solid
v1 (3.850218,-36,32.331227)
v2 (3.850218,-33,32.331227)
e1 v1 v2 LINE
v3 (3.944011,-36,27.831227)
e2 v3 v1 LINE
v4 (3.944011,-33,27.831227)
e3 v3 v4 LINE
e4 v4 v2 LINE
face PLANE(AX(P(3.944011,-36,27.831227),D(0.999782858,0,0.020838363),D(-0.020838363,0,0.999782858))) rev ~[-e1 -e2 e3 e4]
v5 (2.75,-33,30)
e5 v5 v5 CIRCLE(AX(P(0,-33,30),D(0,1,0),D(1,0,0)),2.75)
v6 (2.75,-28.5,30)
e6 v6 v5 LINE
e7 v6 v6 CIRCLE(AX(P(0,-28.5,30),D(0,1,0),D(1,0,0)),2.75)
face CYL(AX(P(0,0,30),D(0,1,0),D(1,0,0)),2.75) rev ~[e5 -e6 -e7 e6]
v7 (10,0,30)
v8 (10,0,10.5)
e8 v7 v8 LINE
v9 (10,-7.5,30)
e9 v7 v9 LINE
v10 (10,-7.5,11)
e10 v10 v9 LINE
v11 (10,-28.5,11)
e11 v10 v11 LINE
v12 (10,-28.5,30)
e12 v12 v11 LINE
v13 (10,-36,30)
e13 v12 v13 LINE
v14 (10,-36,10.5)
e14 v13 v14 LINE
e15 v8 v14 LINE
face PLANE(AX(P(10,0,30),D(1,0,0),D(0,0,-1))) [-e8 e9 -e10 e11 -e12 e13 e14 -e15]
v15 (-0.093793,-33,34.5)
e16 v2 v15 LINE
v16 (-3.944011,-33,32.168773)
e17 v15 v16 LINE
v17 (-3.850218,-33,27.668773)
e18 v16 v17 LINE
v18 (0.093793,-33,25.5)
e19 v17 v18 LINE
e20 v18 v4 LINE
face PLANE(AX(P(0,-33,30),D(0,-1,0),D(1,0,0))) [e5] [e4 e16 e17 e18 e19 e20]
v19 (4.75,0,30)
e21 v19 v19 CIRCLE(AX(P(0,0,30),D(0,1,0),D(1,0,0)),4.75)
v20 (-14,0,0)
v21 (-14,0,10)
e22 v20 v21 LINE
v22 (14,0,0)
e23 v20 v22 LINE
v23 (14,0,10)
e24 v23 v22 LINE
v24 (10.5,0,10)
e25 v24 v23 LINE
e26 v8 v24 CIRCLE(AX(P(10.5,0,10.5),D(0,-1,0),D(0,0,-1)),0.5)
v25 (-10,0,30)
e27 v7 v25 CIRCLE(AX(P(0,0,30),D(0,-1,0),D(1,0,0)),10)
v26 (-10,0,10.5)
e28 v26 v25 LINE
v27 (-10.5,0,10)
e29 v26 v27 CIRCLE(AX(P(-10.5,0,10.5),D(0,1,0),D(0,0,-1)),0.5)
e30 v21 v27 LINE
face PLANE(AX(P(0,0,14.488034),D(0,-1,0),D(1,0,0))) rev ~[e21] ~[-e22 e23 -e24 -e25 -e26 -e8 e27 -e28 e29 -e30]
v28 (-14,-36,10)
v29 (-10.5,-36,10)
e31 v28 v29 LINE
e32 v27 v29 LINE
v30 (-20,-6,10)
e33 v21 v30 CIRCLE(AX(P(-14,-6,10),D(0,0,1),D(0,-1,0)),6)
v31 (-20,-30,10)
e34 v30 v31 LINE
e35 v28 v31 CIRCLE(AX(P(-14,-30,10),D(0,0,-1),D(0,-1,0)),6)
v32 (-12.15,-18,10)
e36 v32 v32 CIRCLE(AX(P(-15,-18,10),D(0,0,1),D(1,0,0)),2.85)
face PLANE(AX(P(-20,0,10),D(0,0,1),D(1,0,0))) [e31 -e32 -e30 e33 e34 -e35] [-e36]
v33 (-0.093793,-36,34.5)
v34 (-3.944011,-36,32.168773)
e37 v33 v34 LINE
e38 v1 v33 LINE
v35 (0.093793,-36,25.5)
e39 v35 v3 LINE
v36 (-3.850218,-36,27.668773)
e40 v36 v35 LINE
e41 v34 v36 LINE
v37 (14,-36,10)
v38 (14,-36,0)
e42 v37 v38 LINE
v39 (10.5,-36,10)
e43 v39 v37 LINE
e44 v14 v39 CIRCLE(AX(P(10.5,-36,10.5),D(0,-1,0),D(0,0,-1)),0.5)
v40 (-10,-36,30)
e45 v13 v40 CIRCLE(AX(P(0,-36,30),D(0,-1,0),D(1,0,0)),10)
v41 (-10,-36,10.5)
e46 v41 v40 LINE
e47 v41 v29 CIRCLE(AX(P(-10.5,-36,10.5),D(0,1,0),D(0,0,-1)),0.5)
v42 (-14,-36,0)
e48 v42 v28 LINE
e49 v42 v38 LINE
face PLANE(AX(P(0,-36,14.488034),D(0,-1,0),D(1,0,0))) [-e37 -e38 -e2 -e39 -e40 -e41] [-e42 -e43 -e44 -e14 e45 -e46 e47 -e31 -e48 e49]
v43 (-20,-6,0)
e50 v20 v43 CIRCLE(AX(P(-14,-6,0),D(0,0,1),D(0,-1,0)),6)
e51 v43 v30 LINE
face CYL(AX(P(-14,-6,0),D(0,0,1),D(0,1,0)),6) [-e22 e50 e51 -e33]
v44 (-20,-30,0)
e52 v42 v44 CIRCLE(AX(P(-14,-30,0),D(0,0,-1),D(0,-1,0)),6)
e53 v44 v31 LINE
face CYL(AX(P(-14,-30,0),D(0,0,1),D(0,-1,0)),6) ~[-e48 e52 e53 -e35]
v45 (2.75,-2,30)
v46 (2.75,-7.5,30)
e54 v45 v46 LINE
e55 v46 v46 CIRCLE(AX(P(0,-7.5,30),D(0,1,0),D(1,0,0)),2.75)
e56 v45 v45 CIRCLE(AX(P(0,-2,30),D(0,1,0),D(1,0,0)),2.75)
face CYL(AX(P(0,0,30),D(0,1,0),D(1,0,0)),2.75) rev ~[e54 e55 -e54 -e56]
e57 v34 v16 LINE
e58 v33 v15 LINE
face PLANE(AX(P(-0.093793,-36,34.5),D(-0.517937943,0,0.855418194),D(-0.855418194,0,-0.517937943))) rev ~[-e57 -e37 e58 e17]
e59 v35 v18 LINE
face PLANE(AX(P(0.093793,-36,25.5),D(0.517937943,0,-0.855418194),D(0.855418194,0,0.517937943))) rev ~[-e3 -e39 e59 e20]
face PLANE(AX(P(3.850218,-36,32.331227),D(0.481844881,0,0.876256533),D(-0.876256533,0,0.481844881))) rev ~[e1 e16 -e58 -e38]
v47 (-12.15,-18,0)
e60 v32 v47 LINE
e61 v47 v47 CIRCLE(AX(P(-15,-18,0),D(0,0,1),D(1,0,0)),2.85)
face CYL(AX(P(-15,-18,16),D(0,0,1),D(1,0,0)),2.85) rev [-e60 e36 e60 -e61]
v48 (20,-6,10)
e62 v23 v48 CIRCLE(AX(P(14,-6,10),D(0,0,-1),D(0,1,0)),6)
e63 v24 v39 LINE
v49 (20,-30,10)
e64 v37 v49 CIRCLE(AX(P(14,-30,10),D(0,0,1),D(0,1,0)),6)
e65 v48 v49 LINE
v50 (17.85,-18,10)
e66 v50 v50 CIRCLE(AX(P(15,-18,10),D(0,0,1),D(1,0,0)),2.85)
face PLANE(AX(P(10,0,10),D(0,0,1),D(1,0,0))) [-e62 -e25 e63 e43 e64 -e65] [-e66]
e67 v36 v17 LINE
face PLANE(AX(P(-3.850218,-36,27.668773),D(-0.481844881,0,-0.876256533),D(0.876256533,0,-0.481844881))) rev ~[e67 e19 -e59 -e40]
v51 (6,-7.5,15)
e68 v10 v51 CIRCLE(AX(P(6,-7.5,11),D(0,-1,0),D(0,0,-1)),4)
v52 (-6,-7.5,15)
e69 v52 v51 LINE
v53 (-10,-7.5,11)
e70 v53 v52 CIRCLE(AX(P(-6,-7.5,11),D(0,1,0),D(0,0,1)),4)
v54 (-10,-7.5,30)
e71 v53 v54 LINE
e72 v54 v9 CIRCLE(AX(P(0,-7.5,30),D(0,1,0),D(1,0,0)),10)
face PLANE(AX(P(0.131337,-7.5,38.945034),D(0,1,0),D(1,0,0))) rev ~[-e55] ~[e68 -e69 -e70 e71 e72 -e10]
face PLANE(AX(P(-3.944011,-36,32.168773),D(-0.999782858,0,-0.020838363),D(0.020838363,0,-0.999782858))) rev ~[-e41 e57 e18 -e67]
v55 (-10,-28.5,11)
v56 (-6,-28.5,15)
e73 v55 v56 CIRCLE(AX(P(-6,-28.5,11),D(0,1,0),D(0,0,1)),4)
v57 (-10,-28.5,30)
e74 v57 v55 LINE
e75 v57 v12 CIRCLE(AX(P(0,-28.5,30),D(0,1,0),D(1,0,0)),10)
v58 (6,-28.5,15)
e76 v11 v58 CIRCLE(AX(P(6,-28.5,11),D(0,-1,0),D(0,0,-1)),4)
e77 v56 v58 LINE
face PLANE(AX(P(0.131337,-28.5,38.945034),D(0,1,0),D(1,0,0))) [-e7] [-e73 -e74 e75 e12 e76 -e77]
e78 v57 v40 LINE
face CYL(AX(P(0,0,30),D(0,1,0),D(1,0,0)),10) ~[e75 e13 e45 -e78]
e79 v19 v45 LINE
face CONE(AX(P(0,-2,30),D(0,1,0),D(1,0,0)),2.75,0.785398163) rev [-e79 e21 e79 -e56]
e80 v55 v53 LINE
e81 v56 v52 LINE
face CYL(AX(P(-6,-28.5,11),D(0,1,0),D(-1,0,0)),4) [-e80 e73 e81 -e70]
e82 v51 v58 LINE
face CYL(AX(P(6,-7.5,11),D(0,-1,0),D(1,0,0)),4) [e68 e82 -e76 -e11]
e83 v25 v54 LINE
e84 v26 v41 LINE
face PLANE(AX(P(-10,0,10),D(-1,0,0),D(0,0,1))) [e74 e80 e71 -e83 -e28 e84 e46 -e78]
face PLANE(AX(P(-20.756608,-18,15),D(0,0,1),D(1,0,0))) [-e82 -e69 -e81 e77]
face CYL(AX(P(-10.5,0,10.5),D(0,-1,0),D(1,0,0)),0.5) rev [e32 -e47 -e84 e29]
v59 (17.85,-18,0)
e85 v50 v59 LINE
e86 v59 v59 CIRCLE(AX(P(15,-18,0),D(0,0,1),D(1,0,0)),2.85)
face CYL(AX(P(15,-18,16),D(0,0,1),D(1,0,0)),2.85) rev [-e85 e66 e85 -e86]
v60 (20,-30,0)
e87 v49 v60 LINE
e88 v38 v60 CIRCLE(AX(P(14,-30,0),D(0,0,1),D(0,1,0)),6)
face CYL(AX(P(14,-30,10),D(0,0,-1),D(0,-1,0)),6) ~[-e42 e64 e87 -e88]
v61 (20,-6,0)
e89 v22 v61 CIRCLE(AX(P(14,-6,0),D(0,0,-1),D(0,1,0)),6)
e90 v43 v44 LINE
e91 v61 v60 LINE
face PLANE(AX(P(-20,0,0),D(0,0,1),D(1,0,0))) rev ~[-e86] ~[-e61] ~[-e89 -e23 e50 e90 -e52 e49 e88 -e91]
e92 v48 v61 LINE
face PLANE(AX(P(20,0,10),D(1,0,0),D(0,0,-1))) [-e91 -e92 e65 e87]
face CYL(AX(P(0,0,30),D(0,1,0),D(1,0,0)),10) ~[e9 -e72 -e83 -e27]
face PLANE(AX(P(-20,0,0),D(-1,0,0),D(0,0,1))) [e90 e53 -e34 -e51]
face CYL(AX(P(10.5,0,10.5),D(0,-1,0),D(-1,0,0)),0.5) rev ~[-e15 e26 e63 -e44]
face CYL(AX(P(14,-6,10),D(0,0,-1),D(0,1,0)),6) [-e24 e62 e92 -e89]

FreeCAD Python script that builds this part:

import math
import FreeCAD as App
import Part
import Sketcher
from FreeCAD import Vector
Q = App.Units.Quantity


def edges_at(feature, points):
    """Names of the edges that pass closest to the given points."""
    edges = feature.Shape.Edges
    near = lambda p: min(range(len(edges)), key=lambda i: edges[i].distToShape(Part.Vertex(*p))[0])
    return sorted({f"Edge{near(p) + 1}" for p in points})


def add_polygon(sketch, points):
    """Adds a closed chain of lines whose ends are joined by coincident constraints."""
    first, n = sketch.GeometryCount, len(points)
    for a, b in zip(points, points[1:] + points[:1]):
        sketch.addGeometry(Part.LineSegment(App.Vector(*a, 0), App.Vector(*b, 0)), False)
    for i in range(n):
        sketch.addConstraint(Sketcher.Constraint("Coincident", first + i, 2, first + (i + 1) % n, 1))

doc = App.newDocument("Part")
params = doc.addObject("Spreadsheet::Sheet", "Params")
for row, (alias, value) in enumerate([
    ("sketch1_radius", "10 mm"),
    ("sketch1_width", "40 mm"),
    ("sketch1_height", "20 mm"),
    ("pad1_length", "36 mm"),
    ("pocket1_length", "21 mm"),
    ("sketch3_diameter", "5.5 mm"),
    ("fillet_radius", "4 mm"),
    ("fillet2_radius", "0.5 mm"),
    ("sketch4_diameter", "5.7 mm"),
    ("fillet3_radius", "6 mm"),
    ("chamfer_size", "2 mm"),
    ("pocket4_length", "3 mm"),
], start=1):
    params.set(f"A{row}", alias)
    params.set(f"B{row}", "=" + value)
    params.setAlias(f"B{row}", alias)

body = doc.addObject("PartDesign::Body", "Body")

# Sketch on XZ plane
sketch1 = body.newObject("Sketcher::SketchObject", "Sketch")
sketch1.AttachmentSupport = (doc.getObject("XZ_Plane"), [""])
sketch1.MapMode = "FlatFace"
sketch1.addGeometry(Part.LineSegment(Vector(-20, 0, 0), Vector(20, 0, 0)), False)
sketch1.addGeometry(Part.LineSegment(Vector(20, 0, 0), Vector(20, 10, 0)), False)
sketch1.addGeometry(Part.LineSegment(Vector(20, 10, 0), Vector(10, 10, 0)), False)
sketch1.addGeometry(Part.LineSegment(Vector(10, 10, 0), Vector(10, 30, 0)), False)
sketch1.addGeometry(Part.ArcOfCircle(Part.Circle(Vector(0, 30, 0), Vector(0, 0, 1), 10), math.radians(0), math.radians(180)), False)
sketch1.addGeometry(Part.LineSegment(Vector(-10, 30, 0), Vector(-10, 10, 0)), False)
sketch1.addGeometry(Part.LineSegment(Vector(-10, 10, 0), Vector(-20, 10, 0)), False)
sketch1.addGeometry(Part.LineSegment(Vector(-20, 10, 0), Vector(-20, 0, 0)), False)
sketch1.addConstraint(Sketcher.Constraint("Coincident", 0, 2, 1, 1))
sketch1.addConstraint(Sketcher.Constraint("Coincident", 1, 2, 2, 1))
sketch1.addConstraint(Sketcher.Constraint("Coincident", 2, 2, 3, 1))
sketch1.addConstraint(Sketcher.Constraint("Tangent", 3, 2, 4, 1))
sketch1.addConstraint(Sketcher.Constraint("Tangent", 4, 2, 5, 1))
sketch1.addConstraint(Sketcher.Constraint("Coincident", 5, 2, 6, 1))
sketch1.addConstraint(Sketcher.Constraint("Coincident", 6, 2, 7, 1))
sketch1.addConstraint(Sketcher.Constraint("Coincident", 7, 2, 0, 1))
sketch1.addConstraint(Sketcher.Constraint("Horizontal", 0))
sketch1.addConstraint(Sketcher.Constraint("Vertical", 1))
sketch1.addConstraint(Sketcher.Constraint("Horizontal", 2))
sketch1.addConstraint(Sketcher.Constraint("Vertical", 3))
sketch1.addConstraint(Sketcher.Constraint("Vertical", 5))
sketch1.addConstraint(Sketcher.Constraint("Horizontal", 6))
sketch1.addConstraint(Sketcher.Constraint("Vertical", 7))
sketch1.addConstraint(Sketcher.Constraint("Symmetric", 0, 2, 7, 2, -1, 1))
sketch1.addConstraint(Sketcher.Constraint("Symmetric", 2, 2, 5, 2, -2))
sketch1.addConstraint(Sketcher.Constraint("Equal", 6, 1))
sketch1.addConstraint(Sketcher.Constraint("Radius", 4, Q("10 mm")))
sketch1.addConstraint(Sketcher.Constraint("DistanceX", 0, 1, 0, 2, Q("40 mm")))
sketch1.addConstraint(Sketcher.Constraint("DistanceY", 3, 1, 3, 2, Q("20 mm")))
sketch1.setExpression("Constraints[18]", "Params.sketch1_radius")
sketch1.setExpression("Constraints[19]", "Params.sketch1_width")
sketch1.setExpression("Constraints[20]", "Params.sketch1_height")
pad1 = body.newObject("PartDesign::Pad", "Pad")
pad1.Profile = sketch1
pad1.setExpression("Length", "Params.pad1_length")

# Sketch on XZ plane
sketch2 = body.newObject("Sketcher::SketchObject", "Sketch001")
sketch2.AttachmentSupport = (doc.getObject("XZ_Plane"), [""])
sketch2.MapMode = "FlatFace"
sketch2.AttachmentOffset = App.Placement(Vector(0, 0, 18), App.Rotation())
add_polygon(sketch2, [(-21, 15), (-21, 63), (21, 63), (21, 15)])  # lines 0-3
sketch2.addConstraint(Sketcher.Constraint("Vertical", 0))
sketch2.addConstraint(Sketcher.Constraint("Horizontal", 1))
sketch2.addConstraint(Sketcher.Constraint("Vertical", 2))
sketch2.addConstraint(Sketcher.Constraint("Horizontal", 3))
sketch2.addConstraint(Sketcher.Constraint("DistanceY", -1, 1, 2, 2, Q("15 mm")))
sketch2.addConstraint(Sketcher.Constraint("DistanceX", 1, 1, 1, 2, Q("41.77589 mm")))
sketch2.addConstraint(Sketcher.Constraint("DistanceY", 0, 1, 0, 2, Q("47.890068 mm")))
sketch2.addConstraint(Sketcher.Constraint("DistanceX", 0, 2, -1, 1, Q("20.756608 mm")))
pocket1 = body.newObject("PartDesign::Pocket", "Pocket")
pocket1.Profile = sketch2
pocket1.setExpression("Length", "Params.pocket1_length")
pocket1.Midplane = True

# Sketch on XZ plane
sketch3 = body.newObject("Sketcher::SketchObject", "Sketch002")
sketch3.AttachmentSupport = (doc.getObject("XZ_Plane"), [""])
sketch3.MapMode = "FlatFace"
sketch3.addGeometry(Part.Circle(Vector(0, 30, 0), Vector(0, 0, 1), 2.8), False)
sketch3.addConstraint(Sketcher.Constraint("PointOnObject", 0, 3, -2))
sketch3.addConstraint(Sketcher.Constraint("Diameter", 0, Q("5.5 mm")))
sketch3.addConstraint(Sketcher.Constraint("DistanceY", -1, 1, 0, 3, Q("30 mm")))
sketch3.setExpression("Constraints[1]", "Params.sketch3_diameter")
pocket2 = body.newObject("PartDesign::Pocket", "Pocket001")
pocket2.Profile = sketch3
pocket2.Type = "ThroughAll"
pocket2.Reversed = True
doc.recompute()

fillet = body.newObject("PartDesign::Fillet", "Fillet")
fillet.Base = (pocket2, edges_at(pocket2, [(10, -18, 15), (-10, -18, 15)]))
fillet.setExpression("Radius", "Params.fillet_radius")
doc.recompute()

fillet2 = body.newObject("PartDesign::Fillet", "Fillet001")
fillet2.Base = (fillet, edges_at(fillet, [(10, -18, 10), (-10, -18, 10)]))
fillet2.setExpression("Radius", "Params.fillet2_radius")

# Sketch on XY plane
sketch4 = body.newObject("Sketcher::SketchObject", "Sketch003")
sketch4.AttachmentSupport = (doc.getObject("XY_Plane"), [""])
sketch4.MapMode = "FlatFace"
sketch4.AttachmentOffset = App.Placement(Vector(0, 0, 16), App.Rotation())
sketch4.addGeometry(Part.Circle(Vector(15, -18, 0), Vector(0, 0, 1), 2.9), False)
sketch4.addGeometry(Part.Circle(Vector(-15, -18, 0), Vector(0, 0, 1), 2.9), False)
sketch4.addConstraint(Sketcher.Constraint("Equal", 0, 1))
sketch4.addConstraint(Sketcher.Constraint("Symmetric", 0, 3, 1, 3, -2))
sketch4.addConstraint(Sketcher.Constraint("Diameter", 0, Q("5.7 mm")))
sketch4.addConstraint(Sketcher.Constraint("DistanceX", -1, 1, 0, 3, Q("15 mm")))
sketch4.addConstraint(Sketcher.Constraint("DistanceY", 0, 3, -1, 1, Q("18 mm")))
sketch4.setExpression("Constraints[2]", "Params.sketch4_diameter")
pocket3 = body.newObject("PartDesign::Pocket", "Pocket002")
pocket3.Profile = sketch4
pocket3.Type = "ThroughAll"
doc.recompute()

fillet3 = body.newObject("PartDesign::Fillet", "Fillet002")
fillet3.Base = (pocket3, edges_at(pocket3, [
    (20, 0, 5),
    (-20, 0, 5),
    (-20, -36, 5),
    (20, -36, 5),
]))
fillet3.setExpression("Radius", "Params.fillet3_radius")
doc.recompute()

chamfer = body.newObject("PartDesign::Chamfer", "Chamfer")
chamfer.Base = (fillet3, edges_at(fillet3, [(-2.75, 0, 30)]))
chamfer.setExpression("Size", "Params.chamfer_size")

# Sketch on XZ plane
sketch5 = body.newObject("Sketcher::SketchObject", "Sketch004")
sketch5.AttachmentSupport = (doc.getObject("XZ_Plane"), [""])
sketch5.MapMode = "FlatFace"
sketch5.AttachmentOffset = App.Placement(Vector(0, 0, 36), App.Rotation())
add_polygon(sketch5, [(-0.1, 34.5), (-3.9, 32.2), (-3.9, 27.7), (0.1, 25.5), (3.9, 27.8), (3.9, 32.3)])  # lines 0-5
sketch5.addConstraint(Sketcher.Constraint("Parallel", 0, 3))
sketch5.addConstraint(Sketcher.Constraint("Parallel", 1, 4))
sketch5.addConstraint(Sketcher.Constraint("Parallel", 2, 5))
sketch5.addConstraint(Sketcher.Constraint("Equal", 0, 1))
sketch5.addConstraint(Sketcher.Constraint("Equal", 1, 2))
sketch5.addConstraint(Sketcher.Constraint("Equal", 2, 3))
sketch5.addConstraint(Sketcher.Constraint("DistanceY", 2, 2, 5, 2, Q("9 mm")))
sketch5.addConstraint(Sketcher.Constraint("DistanceY", -1, 1, 2, 2, Q("25.5 mm")))
sketch5.addConstraint(Sketcher.Constraint("DistanceY", 1, 2, 0, 2, Q("4.5 mm")))
sketch5.addConstraint(Sketcher.Constraint("DistanceX", 0, 2, -1, 1, Q("3.944011 mm")))
sketch5.addConstraint(Sketcher.Constraint("DistanceX", -1, 1, 3, 2, Q("3.944011 mm")))
sketch5.addConstraint(Sketcher.Constraint("DistanceX", 1, 2, 2, 2, Q("3.944011 mm")))
pocket4 = body.newObject("PartDesign::Pocket", "Pocket003")
pocket4.Profile = sketch5
pocket4.setExpression("Length", "Params.pocket4_length")

doc.recompute()
